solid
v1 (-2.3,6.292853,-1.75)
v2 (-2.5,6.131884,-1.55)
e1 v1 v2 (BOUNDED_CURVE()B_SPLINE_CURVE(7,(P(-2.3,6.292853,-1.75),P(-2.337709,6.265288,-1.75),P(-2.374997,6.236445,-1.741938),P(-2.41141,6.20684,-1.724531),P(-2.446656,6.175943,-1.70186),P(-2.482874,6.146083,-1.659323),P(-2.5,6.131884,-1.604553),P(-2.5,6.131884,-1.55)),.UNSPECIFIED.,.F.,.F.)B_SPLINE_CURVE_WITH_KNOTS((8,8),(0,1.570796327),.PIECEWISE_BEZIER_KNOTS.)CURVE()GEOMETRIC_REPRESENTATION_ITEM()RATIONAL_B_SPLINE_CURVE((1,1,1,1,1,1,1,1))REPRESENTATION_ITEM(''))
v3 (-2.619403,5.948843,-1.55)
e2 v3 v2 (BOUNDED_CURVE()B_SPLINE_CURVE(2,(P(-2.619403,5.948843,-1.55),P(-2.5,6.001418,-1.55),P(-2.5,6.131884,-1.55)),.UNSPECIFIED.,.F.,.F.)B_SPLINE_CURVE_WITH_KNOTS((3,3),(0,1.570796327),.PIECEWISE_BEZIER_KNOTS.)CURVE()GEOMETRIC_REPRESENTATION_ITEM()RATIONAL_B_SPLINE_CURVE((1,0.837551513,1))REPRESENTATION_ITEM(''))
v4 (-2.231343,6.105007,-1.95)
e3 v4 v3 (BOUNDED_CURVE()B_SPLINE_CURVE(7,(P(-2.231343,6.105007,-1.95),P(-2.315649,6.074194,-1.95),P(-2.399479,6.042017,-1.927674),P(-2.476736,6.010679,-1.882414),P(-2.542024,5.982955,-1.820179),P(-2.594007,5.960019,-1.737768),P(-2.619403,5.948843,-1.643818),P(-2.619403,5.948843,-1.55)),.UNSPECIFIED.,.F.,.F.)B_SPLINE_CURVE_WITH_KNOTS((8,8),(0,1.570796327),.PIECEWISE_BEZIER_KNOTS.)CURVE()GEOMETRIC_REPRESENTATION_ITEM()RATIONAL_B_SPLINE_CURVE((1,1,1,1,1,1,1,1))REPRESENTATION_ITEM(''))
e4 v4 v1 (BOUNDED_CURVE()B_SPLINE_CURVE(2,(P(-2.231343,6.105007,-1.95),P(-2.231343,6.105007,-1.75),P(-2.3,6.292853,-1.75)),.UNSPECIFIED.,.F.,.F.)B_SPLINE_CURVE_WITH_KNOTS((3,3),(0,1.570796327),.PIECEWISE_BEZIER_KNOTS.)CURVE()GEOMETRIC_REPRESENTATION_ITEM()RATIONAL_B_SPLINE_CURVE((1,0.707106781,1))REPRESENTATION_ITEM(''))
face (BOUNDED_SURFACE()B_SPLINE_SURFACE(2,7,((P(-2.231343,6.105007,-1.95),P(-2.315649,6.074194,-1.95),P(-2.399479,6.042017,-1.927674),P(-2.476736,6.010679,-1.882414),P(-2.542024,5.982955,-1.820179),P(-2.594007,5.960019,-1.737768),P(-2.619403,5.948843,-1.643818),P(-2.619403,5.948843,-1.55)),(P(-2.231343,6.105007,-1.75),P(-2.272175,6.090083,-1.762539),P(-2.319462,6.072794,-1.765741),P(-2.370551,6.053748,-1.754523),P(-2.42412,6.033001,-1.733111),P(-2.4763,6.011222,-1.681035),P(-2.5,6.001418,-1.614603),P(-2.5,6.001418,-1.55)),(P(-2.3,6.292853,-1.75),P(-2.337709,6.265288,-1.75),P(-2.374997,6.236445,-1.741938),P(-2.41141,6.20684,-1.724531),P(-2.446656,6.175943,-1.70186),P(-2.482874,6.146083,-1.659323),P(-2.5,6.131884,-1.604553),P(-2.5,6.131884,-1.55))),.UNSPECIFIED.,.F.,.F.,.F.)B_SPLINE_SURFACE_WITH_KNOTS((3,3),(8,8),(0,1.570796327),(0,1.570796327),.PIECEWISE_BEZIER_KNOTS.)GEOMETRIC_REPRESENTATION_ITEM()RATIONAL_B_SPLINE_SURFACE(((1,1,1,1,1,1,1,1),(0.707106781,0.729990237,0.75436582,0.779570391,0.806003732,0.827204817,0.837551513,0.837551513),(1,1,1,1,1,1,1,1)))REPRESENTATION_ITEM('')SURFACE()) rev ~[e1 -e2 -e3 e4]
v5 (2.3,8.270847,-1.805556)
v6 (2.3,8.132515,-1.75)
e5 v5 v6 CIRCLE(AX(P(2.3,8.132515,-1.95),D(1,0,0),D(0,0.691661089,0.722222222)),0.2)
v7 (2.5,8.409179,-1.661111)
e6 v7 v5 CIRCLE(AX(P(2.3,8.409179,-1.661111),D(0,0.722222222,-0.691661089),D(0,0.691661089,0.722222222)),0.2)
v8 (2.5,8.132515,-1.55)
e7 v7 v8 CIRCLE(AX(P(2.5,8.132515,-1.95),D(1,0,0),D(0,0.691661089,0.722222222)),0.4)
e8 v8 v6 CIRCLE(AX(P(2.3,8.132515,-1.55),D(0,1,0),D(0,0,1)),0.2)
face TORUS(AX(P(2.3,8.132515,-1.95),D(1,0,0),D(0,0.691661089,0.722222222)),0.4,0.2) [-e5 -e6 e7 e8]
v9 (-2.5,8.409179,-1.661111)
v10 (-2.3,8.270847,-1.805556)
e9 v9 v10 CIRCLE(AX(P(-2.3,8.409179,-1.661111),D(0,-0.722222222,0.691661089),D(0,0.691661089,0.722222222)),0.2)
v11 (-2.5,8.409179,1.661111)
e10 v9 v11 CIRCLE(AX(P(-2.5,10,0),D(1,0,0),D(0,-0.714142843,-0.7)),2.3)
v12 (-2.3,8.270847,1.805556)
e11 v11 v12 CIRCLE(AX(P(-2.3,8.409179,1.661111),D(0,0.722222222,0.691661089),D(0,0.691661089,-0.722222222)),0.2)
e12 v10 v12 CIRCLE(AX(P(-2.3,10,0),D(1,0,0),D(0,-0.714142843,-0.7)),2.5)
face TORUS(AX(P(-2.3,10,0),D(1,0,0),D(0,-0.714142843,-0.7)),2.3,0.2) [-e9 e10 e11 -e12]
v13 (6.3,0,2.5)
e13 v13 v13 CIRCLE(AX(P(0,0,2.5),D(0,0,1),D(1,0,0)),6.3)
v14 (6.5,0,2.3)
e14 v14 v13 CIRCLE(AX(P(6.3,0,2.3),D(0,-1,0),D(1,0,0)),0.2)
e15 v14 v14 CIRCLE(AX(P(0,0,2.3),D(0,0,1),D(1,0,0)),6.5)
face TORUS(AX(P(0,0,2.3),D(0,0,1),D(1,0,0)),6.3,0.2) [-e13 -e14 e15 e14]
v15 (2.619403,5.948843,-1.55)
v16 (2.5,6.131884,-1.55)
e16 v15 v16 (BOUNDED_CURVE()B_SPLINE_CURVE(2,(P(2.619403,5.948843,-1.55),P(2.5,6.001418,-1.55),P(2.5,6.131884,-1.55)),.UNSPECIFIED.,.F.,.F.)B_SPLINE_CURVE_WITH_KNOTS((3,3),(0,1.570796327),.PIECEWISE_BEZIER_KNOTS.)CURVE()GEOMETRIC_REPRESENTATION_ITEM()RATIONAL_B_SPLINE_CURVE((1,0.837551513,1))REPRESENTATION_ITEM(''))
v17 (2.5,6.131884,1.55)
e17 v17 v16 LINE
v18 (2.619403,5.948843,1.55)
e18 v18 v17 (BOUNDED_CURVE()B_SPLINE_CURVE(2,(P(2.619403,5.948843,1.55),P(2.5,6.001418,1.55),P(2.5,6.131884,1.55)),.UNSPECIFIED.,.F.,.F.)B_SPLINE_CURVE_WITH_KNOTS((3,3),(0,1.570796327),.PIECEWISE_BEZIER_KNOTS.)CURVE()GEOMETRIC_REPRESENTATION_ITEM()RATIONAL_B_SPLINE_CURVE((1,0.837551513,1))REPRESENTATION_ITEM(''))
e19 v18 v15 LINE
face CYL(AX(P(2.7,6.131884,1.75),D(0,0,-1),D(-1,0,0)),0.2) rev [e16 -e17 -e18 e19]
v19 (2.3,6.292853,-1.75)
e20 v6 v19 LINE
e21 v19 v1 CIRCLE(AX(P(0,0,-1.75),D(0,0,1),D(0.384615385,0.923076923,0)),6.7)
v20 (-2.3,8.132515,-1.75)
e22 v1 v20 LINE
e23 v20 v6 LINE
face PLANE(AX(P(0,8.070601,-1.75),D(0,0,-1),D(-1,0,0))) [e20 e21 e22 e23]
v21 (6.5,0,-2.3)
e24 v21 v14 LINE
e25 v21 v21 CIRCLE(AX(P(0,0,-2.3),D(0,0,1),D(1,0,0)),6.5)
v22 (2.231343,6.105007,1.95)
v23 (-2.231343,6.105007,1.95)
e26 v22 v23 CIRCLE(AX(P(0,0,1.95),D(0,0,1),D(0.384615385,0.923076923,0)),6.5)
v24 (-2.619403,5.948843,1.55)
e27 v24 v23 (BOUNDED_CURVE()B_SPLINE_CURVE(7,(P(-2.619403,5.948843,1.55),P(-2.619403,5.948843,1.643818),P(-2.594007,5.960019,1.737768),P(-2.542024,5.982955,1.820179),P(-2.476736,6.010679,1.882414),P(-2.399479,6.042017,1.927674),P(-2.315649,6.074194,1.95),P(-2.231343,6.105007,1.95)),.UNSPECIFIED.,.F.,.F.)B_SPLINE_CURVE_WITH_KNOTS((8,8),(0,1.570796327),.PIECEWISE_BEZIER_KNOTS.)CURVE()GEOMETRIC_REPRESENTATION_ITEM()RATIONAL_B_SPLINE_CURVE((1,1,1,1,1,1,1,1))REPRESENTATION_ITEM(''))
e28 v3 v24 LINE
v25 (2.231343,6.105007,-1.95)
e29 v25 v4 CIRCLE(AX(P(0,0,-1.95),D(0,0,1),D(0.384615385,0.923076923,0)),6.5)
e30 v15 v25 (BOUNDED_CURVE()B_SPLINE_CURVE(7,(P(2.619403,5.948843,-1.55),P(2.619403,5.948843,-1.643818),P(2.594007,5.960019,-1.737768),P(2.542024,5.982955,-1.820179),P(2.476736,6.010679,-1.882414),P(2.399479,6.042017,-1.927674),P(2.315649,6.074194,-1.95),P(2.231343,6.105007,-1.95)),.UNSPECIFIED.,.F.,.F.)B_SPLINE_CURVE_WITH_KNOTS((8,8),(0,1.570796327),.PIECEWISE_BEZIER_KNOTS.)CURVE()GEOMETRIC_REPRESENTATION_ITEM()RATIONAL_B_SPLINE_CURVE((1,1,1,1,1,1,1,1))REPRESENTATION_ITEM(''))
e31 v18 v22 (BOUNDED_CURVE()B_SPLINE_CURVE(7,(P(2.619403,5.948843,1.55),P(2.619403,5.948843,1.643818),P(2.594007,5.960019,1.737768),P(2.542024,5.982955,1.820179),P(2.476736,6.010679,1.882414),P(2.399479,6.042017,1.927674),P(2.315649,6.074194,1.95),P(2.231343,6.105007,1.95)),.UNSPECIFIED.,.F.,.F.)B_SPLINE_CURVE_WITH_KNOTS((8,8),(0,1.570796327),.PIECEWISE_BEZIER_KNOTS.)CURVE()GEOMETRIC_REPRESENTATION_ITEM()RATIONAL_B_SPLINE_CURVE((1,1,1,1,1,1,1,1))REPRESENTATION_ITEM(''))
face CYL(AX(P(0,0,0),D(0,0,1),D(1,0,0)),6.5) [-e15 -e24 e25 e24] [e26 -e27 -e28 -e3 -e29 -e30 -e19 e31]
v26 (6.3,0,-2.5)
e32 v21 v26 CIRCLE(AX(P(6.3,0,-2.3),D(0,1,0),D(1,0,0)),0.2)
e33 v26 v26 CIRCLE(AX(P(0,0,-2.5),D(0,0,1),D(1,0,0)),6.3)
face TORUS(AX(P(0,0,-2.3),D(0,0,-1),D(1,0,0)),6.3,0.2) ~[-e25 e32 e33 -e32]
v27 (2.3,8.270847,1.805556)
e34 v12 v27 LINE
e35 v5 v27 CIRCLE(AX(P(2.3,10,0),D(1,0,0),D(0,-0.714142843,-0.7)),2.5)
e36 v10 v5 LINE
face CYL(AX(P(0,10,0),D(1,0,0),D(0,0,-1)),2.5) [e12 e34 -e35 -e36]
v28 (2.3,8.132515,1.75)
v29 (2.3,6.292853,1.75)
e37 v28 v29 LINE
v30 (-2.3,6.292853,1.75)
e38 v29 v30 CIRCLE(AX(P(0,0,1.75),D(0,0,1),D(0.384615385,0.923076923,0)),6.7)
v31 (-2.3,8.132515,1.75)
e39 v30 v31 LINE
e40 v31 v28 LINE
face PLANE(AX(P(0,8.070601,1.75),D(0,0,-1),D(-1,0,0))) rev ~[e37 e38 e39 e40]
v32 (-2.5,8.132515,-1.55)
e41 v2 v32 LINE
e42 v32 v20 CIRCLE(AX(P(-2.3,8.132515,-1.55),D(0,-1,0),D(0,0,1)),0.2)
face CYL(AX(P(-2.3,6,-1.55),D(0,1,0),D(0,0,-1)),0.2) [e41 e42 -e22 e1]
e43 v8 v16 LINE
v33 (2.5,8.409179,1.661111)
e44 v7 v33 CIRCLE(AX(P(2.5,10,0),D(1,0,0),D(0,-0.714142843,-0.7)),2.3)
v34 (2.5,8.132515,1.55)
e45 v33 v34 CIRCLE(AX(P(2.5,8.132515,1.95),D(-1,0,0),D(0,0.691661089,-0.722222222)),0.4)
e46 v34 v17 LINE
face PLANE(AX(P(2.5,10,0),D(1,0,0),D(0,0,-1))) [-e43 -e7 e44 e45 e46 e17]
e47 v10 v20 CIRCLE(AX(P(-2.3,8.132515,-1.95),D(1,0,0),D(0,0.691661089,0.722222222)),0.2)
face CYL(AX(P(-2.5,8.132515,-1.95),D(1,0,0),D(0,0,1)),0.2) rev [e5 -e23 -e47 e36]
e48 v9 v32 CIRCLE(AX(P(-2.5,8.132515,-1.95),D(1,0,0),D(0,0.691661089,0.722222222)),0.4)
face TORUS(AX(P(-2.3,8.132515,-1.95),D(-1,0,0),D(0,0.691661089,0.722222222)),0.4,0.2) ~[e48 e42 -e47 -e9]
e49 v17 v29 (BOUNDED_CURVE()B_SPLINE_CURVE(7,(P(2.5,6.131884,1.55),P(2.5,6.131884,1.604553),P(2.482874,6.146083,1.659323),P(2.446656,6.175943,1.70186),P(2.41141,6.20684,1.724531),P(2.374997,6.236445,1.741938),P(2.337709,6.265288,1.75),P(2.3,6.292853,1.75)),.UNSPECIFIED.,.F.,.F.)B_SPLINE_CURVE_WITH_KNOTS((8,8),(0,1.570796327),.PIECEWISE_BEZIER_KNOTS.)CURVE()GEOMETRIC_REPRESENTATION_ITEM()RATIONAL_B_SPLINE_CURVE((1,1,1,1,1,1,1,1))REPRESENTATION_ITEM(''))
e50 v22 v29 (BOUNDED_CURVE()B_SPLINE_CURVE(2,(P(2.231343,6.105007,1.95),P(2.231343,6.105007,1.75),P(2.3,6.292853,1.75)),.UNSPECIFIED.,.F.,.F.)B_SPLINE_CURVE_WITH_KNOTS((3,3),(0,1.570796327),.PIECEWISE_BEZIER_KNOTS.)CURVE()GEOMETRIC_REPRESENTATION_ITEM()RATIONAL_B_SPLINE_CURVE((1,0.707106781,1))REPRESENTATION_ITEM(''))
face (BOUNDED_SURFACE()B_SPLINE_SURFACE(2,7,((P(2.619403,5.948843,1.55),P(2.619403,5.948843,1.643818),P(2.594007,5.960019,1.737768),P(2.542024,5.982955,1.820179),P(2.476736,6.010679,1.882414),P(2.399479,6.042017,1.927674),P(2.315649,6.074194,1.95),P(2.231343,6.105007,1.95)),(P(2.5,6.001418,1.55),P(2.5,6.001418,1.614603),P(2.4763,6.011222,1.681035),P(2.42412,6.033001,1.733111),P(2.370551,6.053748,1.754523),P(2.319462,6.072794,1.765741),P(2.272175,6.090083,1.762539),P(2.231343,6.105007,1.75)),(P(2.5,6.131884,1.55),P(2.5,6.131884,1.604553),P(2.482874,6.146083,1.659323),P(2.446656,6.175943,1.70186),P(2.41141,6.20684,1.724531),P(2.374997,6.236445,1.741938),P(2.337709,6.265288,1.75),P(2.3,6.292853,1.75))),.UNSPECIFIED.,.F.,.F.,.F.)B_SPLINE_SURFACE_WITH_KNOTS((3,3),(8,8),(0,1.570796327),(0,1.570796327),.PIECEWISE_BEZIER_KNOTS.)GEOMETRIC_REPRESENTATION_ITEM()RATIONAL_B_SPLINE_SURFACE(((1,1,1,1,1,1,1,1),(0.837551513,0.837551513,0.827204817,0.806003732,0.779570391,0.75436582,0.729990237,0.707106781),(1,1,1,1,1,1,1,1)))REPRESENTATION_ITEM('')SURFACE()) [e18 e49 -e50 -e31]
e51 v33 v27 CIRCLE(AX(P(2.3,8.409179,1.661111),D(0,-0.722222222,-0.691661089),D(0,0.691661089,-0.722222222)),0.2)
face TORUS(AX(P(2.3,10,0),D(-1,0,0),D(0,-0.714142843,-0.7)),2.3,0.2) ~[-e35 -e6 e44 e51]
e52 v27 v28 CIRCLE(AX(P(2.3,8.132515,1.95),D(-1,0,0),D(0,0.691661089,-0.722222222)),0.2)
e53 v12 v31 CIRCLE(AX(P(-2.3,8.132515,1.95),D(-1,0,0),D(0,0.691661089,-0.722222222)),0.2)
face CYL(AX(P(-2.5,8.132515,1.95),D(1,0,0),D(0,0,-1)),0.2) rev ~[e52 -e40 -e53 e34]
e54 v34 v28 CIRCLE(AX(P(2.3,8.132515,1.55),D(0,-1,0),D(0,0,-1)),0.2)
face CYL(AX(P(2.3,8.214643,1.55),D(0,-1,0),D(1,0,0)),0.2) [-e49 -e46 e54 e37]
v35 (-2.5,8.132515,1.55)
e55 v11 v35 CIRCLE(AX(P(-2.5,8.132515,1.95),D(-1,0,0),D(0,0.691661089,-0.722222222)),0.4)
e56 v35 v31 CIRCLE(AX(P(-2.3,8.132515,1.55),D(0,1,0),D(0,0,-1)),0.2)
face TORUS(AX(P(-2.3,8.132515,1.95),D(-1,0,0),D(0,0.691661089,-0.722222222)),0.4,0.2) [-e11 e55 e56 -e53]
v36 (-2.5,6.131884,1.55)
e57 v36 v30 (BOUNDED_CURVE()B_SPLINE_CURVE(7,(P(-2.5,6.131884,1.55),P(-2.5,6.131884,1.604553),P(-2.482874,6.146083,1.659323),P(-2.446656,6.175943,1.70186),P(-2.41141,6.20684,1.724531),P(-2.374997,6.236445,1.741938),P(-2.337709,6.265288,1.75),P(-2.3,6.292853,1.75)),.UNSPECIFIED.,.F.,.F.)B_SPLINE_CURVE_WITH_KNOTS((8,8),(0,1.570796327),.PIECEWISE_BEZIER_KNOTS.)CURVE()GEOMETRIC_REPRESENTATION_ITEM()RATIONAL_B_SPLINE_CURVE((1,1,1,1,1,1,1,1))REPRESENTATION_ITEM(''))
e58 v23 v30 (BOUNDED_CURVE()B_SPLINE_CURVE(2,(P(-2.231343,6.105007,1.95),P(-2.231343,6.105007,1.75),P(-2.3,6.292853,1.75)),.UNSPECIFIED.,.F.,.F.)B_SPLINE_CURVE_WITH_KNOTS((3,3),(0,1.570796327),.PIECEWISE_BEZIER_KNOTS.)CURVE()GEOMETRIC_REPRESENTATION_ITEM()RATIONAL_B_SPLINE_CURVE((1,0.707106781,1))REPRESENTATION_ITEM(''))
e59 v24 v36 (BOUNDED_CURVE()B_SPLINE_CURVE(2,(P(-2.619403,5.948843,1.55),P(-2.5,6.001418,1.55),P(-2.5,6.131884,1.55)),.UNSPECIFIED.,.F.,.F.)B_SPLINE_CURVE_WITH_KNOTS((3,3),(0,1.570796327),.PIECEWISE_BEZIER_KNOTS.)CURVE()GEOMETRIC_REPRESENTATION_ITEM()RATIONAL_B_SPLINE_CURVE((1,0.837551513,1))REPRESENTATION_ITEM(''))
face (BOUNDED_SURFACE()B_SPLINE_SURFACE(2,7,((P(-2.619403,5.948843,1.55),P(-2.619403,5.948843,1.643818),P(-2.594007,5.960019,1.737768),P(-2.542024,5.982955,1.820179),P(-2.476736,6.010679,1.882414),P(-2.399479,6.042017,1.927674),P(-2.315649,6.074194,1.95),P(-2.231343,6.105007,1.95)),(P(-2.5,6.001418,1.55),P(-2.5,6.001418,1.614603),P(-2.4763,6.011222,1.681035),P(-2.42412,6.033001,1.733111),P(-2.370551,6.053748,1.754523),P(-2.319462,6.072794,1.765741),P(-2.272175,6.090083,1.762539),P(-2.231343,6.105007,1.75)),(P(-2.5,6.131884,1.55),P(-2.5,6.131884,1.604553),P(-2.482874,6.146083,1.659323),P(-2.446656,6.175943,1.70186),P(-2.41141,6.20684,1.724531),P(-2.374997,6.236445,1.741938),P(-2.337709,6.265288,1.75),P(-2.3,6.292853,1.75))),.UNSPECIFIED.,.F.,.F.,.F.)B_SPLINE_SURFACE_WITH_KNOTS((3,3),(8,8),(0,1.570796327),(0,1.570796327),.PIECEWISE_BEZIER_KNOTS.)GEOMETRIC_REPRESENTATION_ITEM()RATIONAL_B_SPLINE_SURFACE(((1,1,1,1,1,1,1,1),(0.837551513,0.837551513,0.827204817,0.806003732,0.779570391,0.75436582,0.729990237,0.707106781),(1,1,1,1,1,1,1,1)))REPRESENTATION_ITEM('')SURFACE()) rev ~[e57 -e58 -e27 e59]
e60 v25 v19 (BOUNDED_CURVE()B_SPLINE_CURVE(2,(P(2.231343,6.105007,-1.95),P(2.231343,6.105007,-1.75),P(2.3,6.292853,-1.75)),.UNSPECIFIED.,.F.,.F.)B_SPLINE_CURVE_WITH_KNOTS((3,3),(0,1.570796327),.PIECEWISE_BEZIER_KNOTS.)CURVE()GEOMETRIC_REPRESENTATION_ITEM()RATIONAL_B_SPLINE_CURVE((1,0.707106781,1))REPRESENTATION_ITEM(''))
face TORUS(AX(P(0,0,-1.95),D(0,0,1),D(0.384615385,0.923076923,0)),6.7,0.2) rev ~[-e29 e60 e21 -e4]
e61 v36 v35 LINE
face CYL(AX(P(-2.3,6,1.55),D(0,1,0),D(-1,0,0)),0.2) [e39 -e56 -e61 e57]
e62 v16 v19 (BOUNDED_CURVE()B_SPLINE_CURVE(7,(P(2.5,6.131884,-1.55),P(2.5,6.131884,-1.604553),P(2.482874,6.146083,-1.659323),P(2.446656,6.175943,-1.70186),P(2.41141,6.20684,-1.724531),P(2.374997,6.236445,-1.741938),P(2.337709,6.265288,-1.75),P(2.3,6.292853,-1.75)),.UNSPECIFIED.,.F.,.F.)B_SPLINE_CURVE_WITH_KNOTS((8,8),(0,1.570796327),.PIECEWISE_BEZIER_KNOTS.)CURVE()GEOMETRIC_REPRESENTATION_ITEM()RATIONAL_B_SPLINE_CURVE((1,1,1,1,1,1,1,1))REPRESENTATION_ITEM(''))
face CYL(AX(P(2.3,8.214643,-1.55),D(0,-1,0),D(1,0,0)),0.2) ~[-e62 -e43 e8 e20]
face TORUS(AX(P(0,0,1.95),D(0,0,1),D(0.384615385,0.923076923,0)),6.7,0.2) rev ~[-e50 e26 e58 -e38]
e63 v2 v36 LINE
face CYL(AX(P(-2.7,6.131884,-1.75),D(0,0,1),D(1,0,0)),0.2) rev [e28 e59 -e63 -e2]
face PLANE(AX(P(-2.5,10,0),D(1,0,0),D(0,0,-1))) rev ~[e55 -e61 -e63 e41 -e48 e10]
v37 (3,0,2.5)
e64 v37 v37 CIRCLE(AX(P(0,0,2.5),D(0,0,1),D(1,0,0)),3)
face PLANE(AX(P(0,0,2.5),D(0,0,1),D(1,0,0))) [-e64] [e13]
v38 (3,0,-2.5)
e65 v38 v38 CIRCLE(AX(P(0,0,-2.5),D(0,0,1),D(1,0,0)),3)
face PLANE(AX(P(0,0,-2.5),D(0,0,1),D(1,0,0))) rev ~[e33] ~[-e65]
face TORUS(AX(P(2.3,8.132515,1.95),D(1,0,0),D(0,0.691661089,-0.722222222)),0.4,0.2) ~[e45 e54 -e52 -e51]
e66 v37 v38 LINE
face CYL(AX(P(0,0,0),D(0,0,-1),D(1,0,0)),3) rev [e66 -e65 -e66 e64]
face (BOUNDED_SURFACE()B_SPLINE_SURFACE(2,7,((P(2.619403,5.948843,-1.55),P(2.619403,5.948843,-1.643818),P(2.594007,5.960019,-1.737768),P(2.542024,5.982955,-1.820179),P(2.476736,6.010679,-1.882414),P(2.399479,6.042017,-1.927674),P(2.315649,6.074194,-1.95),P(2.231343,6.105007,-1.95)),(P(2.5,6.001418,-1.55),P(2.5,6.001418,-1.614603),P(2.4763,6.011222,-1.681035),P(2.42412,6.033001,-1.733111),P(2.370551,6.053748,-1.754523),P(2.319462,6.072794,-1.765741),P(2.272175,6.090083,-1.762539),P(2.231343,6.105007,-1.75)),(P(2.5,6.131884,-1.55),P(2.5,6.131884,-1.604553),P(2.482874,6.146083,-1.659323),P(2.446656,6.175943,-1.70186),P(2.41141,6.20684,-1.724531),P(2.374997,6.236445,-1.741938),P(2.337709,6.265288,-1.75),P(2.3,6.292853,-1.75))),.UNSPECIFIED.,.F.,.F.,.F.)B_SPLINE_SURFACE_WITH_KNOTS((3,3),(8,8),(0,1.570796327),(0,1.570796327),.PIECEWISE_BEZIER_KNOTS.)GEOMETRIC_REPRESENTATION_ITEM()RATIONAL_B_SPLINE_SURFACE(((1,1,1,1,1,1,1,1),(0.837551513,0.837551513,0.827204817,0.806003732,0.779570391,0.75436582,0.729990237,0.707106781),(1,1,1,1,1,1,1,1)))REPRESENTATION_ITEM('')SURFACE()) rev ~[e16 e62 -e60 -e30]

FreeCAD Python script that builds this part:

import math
import FreeCAD as App
import Part
import Sketcher


def edges_at(feature, points):
    """Names of the edges that pass closest to the given points."""
    edges = feature.Shape.Edges
    near = lambda p: min(range(len(edges)), key=lambda i: edges[i].distToShape(Part.Vertex(*p))[0])
    return sorted({f"Edge{near(p) + 1}" for p in points})

doc = App.newDocument("Part")
body = doc.addObject("PartDesign::Body", "Body")

# Sketch on XY plane
sketch1 = doc.addObject("Sketcher::SketchObject", "Sketch")
body.addObject(sketch1)
sketch1.AttachmentSupport = (doc.XY_Plane, [""])
sketch1.MapMode = "FlatFace"
sketch1.addGeometry([
    Part.Circle(App.Vector(0, 0, 0), App.Vector(0, 0, 1), 6.5),
    Part.Circle(App.Vector(0, 0, 0), App.Vector(0, 0, 1), 3),
], False)
sketch1.addConstraint([
    Sketcher.Constraint("Coincident", 0, 3, -1, 1),
    Sketcher.Constraint("Coincident", 1, 3, -1, 1),
    Sketcher.Constraint("Diameter", 0, 13.0),
    Sketcher.Constraint("Diameter", 1, 6.0),
])
pad1 = doc.addObject("PartDesign::Pad", "Pad")
body.addObject(pad1)
pad1.Profile = sketch1
pad1.Length = 5
pad1.Midplane = True
body2 = doc.addObject("PartDesign::Body", "Body001")

# Sketch on YZ plane
sketch2 = doc.addObject("Sketcher::SketchObject", "Sketch001")
body2.addObject(sketch2)
sketch2.AttachmentSupport = (doc.getObject("YZ_Plane001"), [""])
sketch2.MapMode = "FlatFace"
sketch2.addGeometry(Part.Circle(App.Vector(10, 0, 0), App.Vector(0, 0, 1), 2.5), False)
sketch2.addConstraint([
    Sketcher.Constraint("PointOnObject", 0, 3, -1),
    Sketcher.Constraint("Diameter", 0, 5.0),
    Sketcher.Constraint("DistanceX", -1, 1, 0, 3, 10.0),
])
pad2 = doc.addObject("PartDesign::Pad", "Pad001")
body2.addObject(pad2)
pad2.Profile = sketch2
pad2.Length = 5
pad2.Midplane = True
body.AllowCompound = True
doc.recompute()

boolean = doc.addObject("PartDesign::Boolean", "Boolean")
body.addObject(boolean)
boolean.Type = "Fuse"
boolean.addObjects([body2])

# Sketch on XY plane
sketch3 = doc.addObject("Sketcher::SketchObject", "Sketch002")
body.addObject(sketch3)
sketch3.AttachmentSupport = (doc.XY_Plane, [""])
sketch3.MapMode = "FlatFace"
sketch3.addGeometry([
    Part.LineSegment(App.Vector(2.5, 10, 0), App.Vector(-2.5, 10, 0)),
    Part.LineSegment(App.Vector(-2.5, 10, 0), App.Vector(-2.5, 6, 0)),
    Part.ArcOfCircle(Part.Circle(App.Vector(0, 0, 0), App.Vector(0, 0, 1), 6.5), math.radians(67), math.radians(113)),
    Part.LineSegment(App.Vector(2.5, 6, 0), App.Vector(2.5, 10, 0)),
], False)
sketch3.addConstraint([
    Sketcher.Constraint("Coincident", 0, 2, 1, 1),
    Sketcher.Constraint("Coincident", 1, 2, 2, 2),
    Sketcher.Constraint("Coincident", 2, 1, 3, 1),
    Sketcher.Constraint("Coincident", 3, 2, 0, 1),
    Sketcher.Constraint("Horizontal", 0),
    Sketcher.Constraint("Vertical", 1),
    Sketcher.Constraint("Vertical", 3),
    Sketcher.Constraint("Coincident", 2, 3, -1, 1),
    Sketcher.Constraint("Horizontal", 1, 2, 2, 1),
    Sketcher.Constraint("Radius", 2, 6.5),
    Sketcher.Constraint("DistanceX", 0, 2, 0, 1, 5.0),
    Sketcher.Constraint("DistanceY", 1, 2, 1, 1, 4.0),
])
pad3 = doc.addObject("PartDesign::Pad", "Pad002")
body.addObject(pad3)
pad3.Profile = sketch3
pad3.Length = 3.5
pad3.Midplane = True
doc.recompute()

fillet = doc.addObject("PartDesign::Fillet", "Fillet")
body.addObject(fillet)
fillet.Base = (pad3, edges_at(pad3, [
    (0, 6.5, -1.75),
    (-2.5, 6, 0),
    (2.5, 7.107, -1.75),
    (2.5, 6, 0),
    (0, 6.5, 1.75),
    (2.5, 7.107, 1.75),
    (-6.5, 0, -2.5),
    (-2.5, 7.107, -1.75),
    (0, 8.215, -1.75),
    (-2.5, 7.107, 1.75),
    (0, 8.215, 1.75),
    (-2.5, 12.5, 0),
    (2.5, 12.5, 0),
    (-6.5, 0, 2.5),
]))
fillet.Radius = 0.2

doc.recompute()
